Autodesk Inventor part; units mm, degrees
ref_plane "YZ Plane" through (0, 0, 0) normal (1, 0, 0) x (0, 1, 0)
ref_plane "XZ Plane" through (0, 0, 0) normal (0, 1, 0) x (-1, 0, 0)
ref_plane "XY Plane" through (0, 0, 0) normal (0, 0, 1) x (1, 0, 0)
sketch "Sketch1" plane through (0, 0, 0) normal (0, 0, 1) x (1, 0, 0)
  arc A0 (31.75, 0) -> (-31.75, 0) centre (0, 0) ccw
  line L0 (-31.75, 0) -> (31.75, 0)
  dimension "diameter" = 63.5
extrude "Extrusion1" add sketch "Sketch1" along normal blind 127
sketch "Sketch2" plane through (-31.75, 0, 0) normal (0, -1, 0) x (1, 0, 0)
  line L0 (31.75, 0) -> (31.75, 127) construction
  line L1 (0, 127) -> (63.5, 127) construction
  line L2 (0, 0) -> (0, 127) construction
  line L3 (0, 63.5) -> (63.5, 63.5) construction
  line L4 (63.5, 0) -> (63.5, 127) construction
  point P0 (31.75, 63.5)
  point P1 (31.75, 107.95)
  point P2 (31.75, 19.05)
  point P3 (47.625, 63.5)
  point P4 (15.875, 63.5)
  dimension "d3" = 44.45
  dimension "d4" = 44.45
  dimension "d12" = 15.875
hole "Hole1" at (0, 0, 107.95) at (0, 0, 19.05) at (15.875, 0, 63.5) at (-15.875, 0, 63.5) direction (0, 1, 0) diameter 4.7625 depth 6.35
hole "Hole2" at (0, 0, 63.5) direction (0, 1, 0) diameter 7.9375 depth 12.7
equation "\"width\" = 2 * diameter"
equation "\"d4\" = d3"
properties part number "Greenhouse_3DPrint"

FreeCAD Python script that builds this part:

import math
import FreeCAD as App
import Part
import Sketcher
Q = App.Units.Quantity

doc = App.newDocument("Part")
params = doc.addObject("Spreadsheet::Sheet", "Params")
for row, (alias, value) in enumerate([
    ("sketch1_radius", "1.25 in"),
    ("pad1_length", "5 in"),
    ("sketch2_diameter", "0.1875 in"),
    ("hole_diameter", "0.1875 in"),
    ("hole_depth", "0.25 in"),
    ("sketch3_diameter", "0.3125 in"),
    ("hole2_diameter", "0.3125 in"),
    ("hole2_depth", "0.5 in"),
], start=1):
    params.set(f"A{row}", alias)
    params.set(f"B{row}", "=" + value)
    params.setAlias(f"B{row}", alias)

body = doc.addObject("PartDesign::Body", "Body")

sketch1 = body.newObject("Sketcher::SketchObject", "Sketch")
sketch1.AttachmentSupport = (doc.getObject("XY_Plane"), [""])
sketch1.MapMode = "FlatFace"
sketch1.addGeometry([
    Part.LineSegment(App.Vector(-32, 0, 0), App.Vector(32, 0, 0)),
    Part.ArcOfCircle(Part.Circle(App.Vector(0, 0, 0), App.Vector(0, 0, 1), 32), math.radians(0), math.radians(180)),
], False)
sketch1.addConstraint([
    Sketcher.Constraint("Coincident", 0, 1, 1, 2),
    Sketcher.Constraint("Coincident", 1, 1, 0, 2),
    Sketcher.Constraint("Horizontal", 0),
    Sketcher.Constraint("Coincident", 1, 3, -1, 1),
    Sketcher.Constraint("PointOnObject", 0, 1, -1),
    Sketcher.Constraint("Radius", 1, Q("1.25 in")),
])
sketch1.setExpression("Constraints[5]", "Params.sketch1_radius")
pad1 = body.newObject("PartDesign::Pad", "Pad")
pad1.Profile = sketch1
pad1.setExpression("Length", "Params.pad1_length")

sketch2 = body.newObject("Sketcher::SketchObject", "Sketch001")
sketch2.AttachmentSupport = (doc.getObject("XZ_Plane"), [""])
sketch2.MapMode = "FlatFace"
sketch2.addGeometry([
    Part.Circle(App.Vector(0, 108, 0), App.Vector(0, 0, 1), 2.4),
    Part.Circle(App.Vector(0, 19.1, 0), App.Vector(0, 0, 1), 2.4),
    Part.Circle(App.Vector(15.9, 63.5, 0), App.Vector(0, 0, 1), 2.4),
    Part.Circle(App.Vector(-15.9, 63.5, 0), App.Vector(0, 0, 1), 2.4),
], False)
sketch2.addConstraint([
    Sketcher.Constraint("Equal", 0, 1),
    Sketcher.Constraint("Equal", 1, 2),
    Sketcher.Constraint("Equal", 2, 3),
    Sketcher.Constraint("Symmetric", 2, 3, 3, 3, -2),
    Sketcher.Constraint("PointOnObject", 0, 3, -2),
    Sketcher.Constraint("PointOnObject", 1, 3, -2),
    Sketcher.Constraint("Diameter", 0, Q("0.1875 in")),
    Sketcher.Constraint("DistanceY", -1, 1, 2, 3, Q("2.5 in")),
    Sketcher.Constraint("DistanceY", 1, 3, 0, 3, Q("3.5 in")),
    Sketcher.Constraint("DistanceY", -1, 1, 0, 3, Q("4.25 in")),
    Sketcher.Constraint("DistanceX", 3, 3, 2, 3, Q("1.25 in")),
])
sketch2.setExpression("Constraints[6]", "Params.sketch2_diameter")
doc.recompute()
hole = body.newObject("PartDesign::Hole", "Hole")
hole.Profile = sketch2
hole.ThreadType = "None"
hole.setExpression("Diameter", "Params.hole_diameter")
hole.DepthType = "Dimension"
hole.setExpression("Depth", "Params.hole_depth")
hole.DrillPoint = "Flat"

sketch3 = body.newObject("Sketcher::SketchObject", "Sketch002")
sketch3.AttachmentSupport = (doc.getObject("XZ_Plane"), [""])
sketch3.MapMode = "FlatFace"
sketch3.addGeometry(Part.Circle(App.Vector(0, 63.5, 0), App.Vector(0, 0, 1), 4), False)
sketch3.addConstraint([
    Sketcher.Constraint("PointOnObject", 0, 3, -2),
    Sketcher.Constraint("Diameter", 0, Q("0.3125 in")),
    Sketcher.Constraint("DistanceY", -1, 1, 0, 3, Q("2.5 in")),
])
sketch3.setExpression("Constraints[1]", "Params.sketch3_diameter")
doc.recompute()
hole2 = body.newObject("PartDesign::Hole", "Hole001")
hole2.Profile = sketch3
hole2.ThreadType = "None"
hole2.setExpression("Diameter", "Params.hole2_diameter")
hole2.DepthType = "Dimension"
hole2.setExpression("Depth", "Params.hole2_depth")
hole2.DrillPoint = "Flat"

doc.recompute()
